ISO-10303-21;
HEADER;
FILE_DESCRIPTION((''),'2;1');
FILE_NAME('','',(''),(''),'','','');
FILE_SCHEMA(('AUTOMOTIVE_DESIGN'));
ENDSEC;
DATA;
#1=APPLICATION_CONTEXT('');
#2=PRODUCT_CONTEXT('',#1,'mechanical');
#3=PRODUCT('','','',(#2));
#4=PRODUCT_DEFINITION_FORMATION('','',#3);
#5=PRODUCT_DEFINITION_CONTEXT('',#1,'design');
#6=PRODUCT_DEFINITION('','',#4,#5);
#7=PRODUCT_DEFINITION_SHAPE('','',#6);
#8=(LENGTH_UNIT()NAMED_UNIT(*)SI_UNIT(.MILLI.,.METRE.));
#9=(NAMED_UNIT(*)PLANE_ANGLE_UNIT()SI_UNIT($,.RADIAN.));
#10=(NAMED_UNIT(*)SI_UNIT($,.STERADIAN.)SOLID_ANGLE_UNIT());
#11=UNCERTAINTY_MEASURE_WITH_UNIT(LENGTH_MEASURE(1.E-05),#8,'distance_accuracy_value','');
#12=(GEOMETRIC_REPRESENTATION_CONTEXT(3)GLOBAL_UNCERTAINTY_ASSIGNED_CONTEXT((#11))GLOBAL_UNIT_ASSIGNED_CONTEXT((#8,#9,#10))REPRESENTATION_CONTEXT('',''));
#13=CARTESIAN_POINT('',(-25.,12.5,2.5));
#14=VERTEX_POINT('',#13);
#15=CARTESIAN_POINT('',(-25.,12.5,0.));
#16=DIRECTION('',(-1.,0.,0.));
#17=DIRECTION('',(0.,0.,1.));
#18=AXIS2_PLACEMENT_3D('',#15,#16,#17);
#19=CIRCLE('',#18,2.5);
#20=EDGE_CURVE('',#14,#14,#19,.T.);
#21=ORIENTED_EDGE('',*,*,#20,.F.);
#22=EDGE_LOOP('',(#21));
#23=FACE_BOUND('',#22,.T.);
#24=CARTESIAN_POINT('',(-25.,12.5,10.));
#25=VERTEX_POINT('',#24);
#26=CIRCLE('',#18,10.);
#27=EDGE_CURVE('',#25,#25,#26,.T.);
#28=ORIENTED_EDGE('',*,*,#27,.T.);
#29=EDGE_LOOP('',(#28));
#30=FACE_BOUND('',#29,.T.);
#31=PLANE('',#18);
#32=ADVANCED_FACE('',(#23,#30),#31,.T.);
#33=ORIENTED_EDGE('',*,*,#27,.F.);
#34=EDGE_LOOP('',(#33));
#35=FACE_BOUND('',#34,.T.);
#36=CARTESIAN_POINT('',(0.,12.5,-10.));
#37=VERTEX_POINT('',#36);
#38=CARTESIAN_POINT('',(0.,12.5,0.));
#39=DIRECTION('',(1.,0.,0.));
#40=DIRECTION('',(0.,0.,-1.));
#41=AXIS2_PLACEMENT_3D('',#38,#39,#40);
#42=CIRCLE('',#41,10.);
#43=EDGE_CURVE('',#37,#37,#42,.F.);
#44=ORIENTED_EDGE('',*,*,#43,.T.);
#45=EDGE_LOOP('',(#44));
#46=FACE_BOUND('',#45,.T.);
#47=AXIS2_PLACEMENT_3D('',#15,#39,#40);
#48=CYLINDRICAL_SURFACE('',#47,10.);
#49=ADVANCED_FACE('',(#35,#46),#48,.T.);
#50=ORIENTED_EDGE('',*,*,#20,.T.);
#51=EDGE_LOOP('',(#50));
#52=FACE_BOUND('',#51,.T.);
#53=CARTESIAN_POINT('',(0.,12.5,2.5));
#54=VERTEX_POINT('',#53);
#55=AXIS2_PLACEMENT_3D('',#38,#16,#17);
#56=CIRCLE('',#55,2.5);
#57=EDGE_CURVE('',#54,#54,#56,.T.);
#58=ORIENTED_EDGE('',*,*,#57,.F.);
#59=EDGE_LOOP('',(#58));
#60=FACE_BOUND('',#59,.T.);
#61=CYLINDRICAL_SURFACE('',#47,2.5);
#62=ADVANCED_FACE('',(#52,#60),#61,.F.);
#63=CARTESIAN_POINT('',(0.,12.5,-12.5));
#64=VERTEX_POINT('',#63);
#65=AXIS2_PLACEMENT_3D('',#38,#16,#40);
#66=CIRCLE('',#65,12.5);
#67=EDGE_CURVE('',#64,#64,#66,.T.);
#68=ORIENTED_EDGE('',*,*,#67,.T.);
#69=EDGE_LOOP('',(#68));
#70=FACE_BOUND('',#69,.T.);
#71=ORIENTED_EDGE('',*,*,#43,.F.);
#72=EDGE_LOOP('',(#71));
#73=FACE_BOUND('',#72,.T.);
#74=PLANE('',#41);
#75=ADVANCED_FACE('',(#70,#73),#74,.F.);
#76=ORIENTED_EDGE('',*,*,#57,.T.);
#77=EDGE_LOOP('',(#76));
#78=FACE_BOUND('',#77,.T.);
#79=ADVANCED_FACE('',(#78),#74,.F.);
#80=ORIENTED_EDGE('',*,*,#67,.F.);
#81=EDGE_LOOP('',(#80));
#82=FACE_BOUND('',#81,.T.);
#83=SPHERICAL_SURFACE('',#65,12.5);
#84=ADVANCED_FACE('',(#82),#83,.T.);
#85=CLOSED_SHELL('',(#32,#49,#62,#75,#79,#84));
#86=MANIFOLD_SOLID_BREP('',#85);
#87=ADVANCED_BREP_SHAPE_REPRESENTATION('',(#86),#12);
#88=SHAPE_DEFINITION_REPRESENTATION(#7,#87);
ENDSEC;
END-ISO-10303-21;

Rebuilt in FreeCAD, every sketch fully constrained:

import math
import FreeCAD as App
import Part
import Sketcher
from FreeCAD import Vector
Q = App.Units.Quantity

doc = App.newDocument("Part")
body = doc.addObject("PartDesign::Body", "Body")

# Sketch on YZ plane
sketch1 = body.newObject("Sketcher::SketchObject", "Sketch")
sketch1.AttachmentSupport = (doc.getObject("YZ_Plane"), [""])
sketch1.MapMode = "FlatFace"
sketch1.addGeometry([
    Part.LineSegment(Vector(25, 0, 0), Vector(0, 0, 0)),
    Part.ArcOfCircle(Part.Circle(Vector(12, 0, 0), Vector(0, 0, 1), 12), math.radians(180), math.radians(360)),
], False)
sketch1.addConstraint([
    Sketcher.Constraint("Coincident", 0, 1, 1, 2),
    Sketcher.Constraint("Coincident", 1, 1, 0, 2),
    Sketcher.Constraint("Horizontal", 0),
    Sketcher.Constraint("Coincident", 1, 1, -1, 1),
    Sketcher.Constraint("PointOnObject", 1, 3, -1),
    Sketcher.Constraint("Radius", 1, Q("12.5 mm")),
])
revolution = body.newObject("PartDesign::Revolution", "Revolution")
revolution.Profile = sketch1
revolution.ReferenceAxis = (sketch1, ["H_Axis"])
revolution.Angle = 180
revolution.Reversed = True

# Sketch on YZ plane
sketch2 = body.newObject("Sketcher::SketchObject", "Sketch001")
sketch2.AttachmentSupport = (doc.getObject("YZ_Plane"), [""])
sketch2.MapMode = "FlatFace"
sketch2.addGeometry([
    Part.Circle(Vector(12.5, 0, 0), Vector(0, 0, 1), 10),
    Part.Circle(Vector(12.5, 0, 0), Vector(0, 0, 1), 2.5),
], False)
sketch2.addConstraint([
    Sketcher.Constraint("Coincident", 1, 3, 0, 3),
    Sketcher.Constraint("PointOnObject", 0, 3, -1),
    Sketcher.Constraint("Diameter", 0, Q("20 mm")),
    Sketcher.Constraint("Diameter", 1, Q("5 mm")),
    Sketcher.Constraint("DistanceX", -1, 1, 0, 3, Q("12.5 mm")),
])
pad1 = body.newObject("PartDesign::Pad", "Pad")
pad1.Profile = sketch2
pad1.Length = 25
pad1.Reversed = True

doc.recompute()
